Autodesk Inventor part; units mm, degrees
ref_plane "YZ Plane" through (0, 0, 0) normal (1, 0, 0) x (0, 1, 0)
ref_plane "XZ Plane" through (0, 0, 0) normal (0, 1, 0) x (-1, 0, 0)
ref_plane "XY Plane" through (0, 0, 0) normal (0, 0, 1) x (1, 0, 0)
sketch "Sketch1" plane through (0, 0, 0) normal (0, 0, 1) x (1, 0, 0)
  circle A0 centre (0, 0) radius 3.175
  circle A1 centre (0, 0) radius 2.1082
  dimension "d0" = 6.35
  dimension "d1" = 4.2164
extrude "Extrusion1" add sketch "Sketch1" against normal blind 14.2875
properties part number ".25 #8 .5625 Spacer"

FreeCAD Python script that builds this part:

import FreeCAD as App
import Part
import Sketcher

V = App.Vector
Q = App.Units.Quantity

doc = App.newDocument("Part")
body = doc.addObject("PartDesign::Body", "Body")

sketch1 = body.newObject("Sketcher::SketchObject", "Sketch")
sketch1.AttachmentSupport = (doc.getObject("XY_Plane"), [""])
sketch1.MapMode = "FlatFace"
sketch1.addGeometry([
    Part.Circle(V(0, 0, 0), V(0, 0, 1), 3.2),
    Part.Circle(V(0, 0, 0), V(0, 0, 1), 2.1),
], False)
sketch1.addConstraint([
    Sketcher.Constraint("Coincident", 0, 3, -1, 1),
    Sketcher.Constraint("Coincident", 1, 3, -1, 1),
    Sketcher.Constraint("Diameter", 0, Q("0.25 in")),
    Sketcher.Constraint("Diameter", 1, Q("0.166 in")),
])
pad1 = body.newObject("PartDesign::Pad", "Pad")
pad1.Profile = sketch1
pad1.Length = Q("0.5625 in")
pad1.Reversed = True

doc.recompute()
